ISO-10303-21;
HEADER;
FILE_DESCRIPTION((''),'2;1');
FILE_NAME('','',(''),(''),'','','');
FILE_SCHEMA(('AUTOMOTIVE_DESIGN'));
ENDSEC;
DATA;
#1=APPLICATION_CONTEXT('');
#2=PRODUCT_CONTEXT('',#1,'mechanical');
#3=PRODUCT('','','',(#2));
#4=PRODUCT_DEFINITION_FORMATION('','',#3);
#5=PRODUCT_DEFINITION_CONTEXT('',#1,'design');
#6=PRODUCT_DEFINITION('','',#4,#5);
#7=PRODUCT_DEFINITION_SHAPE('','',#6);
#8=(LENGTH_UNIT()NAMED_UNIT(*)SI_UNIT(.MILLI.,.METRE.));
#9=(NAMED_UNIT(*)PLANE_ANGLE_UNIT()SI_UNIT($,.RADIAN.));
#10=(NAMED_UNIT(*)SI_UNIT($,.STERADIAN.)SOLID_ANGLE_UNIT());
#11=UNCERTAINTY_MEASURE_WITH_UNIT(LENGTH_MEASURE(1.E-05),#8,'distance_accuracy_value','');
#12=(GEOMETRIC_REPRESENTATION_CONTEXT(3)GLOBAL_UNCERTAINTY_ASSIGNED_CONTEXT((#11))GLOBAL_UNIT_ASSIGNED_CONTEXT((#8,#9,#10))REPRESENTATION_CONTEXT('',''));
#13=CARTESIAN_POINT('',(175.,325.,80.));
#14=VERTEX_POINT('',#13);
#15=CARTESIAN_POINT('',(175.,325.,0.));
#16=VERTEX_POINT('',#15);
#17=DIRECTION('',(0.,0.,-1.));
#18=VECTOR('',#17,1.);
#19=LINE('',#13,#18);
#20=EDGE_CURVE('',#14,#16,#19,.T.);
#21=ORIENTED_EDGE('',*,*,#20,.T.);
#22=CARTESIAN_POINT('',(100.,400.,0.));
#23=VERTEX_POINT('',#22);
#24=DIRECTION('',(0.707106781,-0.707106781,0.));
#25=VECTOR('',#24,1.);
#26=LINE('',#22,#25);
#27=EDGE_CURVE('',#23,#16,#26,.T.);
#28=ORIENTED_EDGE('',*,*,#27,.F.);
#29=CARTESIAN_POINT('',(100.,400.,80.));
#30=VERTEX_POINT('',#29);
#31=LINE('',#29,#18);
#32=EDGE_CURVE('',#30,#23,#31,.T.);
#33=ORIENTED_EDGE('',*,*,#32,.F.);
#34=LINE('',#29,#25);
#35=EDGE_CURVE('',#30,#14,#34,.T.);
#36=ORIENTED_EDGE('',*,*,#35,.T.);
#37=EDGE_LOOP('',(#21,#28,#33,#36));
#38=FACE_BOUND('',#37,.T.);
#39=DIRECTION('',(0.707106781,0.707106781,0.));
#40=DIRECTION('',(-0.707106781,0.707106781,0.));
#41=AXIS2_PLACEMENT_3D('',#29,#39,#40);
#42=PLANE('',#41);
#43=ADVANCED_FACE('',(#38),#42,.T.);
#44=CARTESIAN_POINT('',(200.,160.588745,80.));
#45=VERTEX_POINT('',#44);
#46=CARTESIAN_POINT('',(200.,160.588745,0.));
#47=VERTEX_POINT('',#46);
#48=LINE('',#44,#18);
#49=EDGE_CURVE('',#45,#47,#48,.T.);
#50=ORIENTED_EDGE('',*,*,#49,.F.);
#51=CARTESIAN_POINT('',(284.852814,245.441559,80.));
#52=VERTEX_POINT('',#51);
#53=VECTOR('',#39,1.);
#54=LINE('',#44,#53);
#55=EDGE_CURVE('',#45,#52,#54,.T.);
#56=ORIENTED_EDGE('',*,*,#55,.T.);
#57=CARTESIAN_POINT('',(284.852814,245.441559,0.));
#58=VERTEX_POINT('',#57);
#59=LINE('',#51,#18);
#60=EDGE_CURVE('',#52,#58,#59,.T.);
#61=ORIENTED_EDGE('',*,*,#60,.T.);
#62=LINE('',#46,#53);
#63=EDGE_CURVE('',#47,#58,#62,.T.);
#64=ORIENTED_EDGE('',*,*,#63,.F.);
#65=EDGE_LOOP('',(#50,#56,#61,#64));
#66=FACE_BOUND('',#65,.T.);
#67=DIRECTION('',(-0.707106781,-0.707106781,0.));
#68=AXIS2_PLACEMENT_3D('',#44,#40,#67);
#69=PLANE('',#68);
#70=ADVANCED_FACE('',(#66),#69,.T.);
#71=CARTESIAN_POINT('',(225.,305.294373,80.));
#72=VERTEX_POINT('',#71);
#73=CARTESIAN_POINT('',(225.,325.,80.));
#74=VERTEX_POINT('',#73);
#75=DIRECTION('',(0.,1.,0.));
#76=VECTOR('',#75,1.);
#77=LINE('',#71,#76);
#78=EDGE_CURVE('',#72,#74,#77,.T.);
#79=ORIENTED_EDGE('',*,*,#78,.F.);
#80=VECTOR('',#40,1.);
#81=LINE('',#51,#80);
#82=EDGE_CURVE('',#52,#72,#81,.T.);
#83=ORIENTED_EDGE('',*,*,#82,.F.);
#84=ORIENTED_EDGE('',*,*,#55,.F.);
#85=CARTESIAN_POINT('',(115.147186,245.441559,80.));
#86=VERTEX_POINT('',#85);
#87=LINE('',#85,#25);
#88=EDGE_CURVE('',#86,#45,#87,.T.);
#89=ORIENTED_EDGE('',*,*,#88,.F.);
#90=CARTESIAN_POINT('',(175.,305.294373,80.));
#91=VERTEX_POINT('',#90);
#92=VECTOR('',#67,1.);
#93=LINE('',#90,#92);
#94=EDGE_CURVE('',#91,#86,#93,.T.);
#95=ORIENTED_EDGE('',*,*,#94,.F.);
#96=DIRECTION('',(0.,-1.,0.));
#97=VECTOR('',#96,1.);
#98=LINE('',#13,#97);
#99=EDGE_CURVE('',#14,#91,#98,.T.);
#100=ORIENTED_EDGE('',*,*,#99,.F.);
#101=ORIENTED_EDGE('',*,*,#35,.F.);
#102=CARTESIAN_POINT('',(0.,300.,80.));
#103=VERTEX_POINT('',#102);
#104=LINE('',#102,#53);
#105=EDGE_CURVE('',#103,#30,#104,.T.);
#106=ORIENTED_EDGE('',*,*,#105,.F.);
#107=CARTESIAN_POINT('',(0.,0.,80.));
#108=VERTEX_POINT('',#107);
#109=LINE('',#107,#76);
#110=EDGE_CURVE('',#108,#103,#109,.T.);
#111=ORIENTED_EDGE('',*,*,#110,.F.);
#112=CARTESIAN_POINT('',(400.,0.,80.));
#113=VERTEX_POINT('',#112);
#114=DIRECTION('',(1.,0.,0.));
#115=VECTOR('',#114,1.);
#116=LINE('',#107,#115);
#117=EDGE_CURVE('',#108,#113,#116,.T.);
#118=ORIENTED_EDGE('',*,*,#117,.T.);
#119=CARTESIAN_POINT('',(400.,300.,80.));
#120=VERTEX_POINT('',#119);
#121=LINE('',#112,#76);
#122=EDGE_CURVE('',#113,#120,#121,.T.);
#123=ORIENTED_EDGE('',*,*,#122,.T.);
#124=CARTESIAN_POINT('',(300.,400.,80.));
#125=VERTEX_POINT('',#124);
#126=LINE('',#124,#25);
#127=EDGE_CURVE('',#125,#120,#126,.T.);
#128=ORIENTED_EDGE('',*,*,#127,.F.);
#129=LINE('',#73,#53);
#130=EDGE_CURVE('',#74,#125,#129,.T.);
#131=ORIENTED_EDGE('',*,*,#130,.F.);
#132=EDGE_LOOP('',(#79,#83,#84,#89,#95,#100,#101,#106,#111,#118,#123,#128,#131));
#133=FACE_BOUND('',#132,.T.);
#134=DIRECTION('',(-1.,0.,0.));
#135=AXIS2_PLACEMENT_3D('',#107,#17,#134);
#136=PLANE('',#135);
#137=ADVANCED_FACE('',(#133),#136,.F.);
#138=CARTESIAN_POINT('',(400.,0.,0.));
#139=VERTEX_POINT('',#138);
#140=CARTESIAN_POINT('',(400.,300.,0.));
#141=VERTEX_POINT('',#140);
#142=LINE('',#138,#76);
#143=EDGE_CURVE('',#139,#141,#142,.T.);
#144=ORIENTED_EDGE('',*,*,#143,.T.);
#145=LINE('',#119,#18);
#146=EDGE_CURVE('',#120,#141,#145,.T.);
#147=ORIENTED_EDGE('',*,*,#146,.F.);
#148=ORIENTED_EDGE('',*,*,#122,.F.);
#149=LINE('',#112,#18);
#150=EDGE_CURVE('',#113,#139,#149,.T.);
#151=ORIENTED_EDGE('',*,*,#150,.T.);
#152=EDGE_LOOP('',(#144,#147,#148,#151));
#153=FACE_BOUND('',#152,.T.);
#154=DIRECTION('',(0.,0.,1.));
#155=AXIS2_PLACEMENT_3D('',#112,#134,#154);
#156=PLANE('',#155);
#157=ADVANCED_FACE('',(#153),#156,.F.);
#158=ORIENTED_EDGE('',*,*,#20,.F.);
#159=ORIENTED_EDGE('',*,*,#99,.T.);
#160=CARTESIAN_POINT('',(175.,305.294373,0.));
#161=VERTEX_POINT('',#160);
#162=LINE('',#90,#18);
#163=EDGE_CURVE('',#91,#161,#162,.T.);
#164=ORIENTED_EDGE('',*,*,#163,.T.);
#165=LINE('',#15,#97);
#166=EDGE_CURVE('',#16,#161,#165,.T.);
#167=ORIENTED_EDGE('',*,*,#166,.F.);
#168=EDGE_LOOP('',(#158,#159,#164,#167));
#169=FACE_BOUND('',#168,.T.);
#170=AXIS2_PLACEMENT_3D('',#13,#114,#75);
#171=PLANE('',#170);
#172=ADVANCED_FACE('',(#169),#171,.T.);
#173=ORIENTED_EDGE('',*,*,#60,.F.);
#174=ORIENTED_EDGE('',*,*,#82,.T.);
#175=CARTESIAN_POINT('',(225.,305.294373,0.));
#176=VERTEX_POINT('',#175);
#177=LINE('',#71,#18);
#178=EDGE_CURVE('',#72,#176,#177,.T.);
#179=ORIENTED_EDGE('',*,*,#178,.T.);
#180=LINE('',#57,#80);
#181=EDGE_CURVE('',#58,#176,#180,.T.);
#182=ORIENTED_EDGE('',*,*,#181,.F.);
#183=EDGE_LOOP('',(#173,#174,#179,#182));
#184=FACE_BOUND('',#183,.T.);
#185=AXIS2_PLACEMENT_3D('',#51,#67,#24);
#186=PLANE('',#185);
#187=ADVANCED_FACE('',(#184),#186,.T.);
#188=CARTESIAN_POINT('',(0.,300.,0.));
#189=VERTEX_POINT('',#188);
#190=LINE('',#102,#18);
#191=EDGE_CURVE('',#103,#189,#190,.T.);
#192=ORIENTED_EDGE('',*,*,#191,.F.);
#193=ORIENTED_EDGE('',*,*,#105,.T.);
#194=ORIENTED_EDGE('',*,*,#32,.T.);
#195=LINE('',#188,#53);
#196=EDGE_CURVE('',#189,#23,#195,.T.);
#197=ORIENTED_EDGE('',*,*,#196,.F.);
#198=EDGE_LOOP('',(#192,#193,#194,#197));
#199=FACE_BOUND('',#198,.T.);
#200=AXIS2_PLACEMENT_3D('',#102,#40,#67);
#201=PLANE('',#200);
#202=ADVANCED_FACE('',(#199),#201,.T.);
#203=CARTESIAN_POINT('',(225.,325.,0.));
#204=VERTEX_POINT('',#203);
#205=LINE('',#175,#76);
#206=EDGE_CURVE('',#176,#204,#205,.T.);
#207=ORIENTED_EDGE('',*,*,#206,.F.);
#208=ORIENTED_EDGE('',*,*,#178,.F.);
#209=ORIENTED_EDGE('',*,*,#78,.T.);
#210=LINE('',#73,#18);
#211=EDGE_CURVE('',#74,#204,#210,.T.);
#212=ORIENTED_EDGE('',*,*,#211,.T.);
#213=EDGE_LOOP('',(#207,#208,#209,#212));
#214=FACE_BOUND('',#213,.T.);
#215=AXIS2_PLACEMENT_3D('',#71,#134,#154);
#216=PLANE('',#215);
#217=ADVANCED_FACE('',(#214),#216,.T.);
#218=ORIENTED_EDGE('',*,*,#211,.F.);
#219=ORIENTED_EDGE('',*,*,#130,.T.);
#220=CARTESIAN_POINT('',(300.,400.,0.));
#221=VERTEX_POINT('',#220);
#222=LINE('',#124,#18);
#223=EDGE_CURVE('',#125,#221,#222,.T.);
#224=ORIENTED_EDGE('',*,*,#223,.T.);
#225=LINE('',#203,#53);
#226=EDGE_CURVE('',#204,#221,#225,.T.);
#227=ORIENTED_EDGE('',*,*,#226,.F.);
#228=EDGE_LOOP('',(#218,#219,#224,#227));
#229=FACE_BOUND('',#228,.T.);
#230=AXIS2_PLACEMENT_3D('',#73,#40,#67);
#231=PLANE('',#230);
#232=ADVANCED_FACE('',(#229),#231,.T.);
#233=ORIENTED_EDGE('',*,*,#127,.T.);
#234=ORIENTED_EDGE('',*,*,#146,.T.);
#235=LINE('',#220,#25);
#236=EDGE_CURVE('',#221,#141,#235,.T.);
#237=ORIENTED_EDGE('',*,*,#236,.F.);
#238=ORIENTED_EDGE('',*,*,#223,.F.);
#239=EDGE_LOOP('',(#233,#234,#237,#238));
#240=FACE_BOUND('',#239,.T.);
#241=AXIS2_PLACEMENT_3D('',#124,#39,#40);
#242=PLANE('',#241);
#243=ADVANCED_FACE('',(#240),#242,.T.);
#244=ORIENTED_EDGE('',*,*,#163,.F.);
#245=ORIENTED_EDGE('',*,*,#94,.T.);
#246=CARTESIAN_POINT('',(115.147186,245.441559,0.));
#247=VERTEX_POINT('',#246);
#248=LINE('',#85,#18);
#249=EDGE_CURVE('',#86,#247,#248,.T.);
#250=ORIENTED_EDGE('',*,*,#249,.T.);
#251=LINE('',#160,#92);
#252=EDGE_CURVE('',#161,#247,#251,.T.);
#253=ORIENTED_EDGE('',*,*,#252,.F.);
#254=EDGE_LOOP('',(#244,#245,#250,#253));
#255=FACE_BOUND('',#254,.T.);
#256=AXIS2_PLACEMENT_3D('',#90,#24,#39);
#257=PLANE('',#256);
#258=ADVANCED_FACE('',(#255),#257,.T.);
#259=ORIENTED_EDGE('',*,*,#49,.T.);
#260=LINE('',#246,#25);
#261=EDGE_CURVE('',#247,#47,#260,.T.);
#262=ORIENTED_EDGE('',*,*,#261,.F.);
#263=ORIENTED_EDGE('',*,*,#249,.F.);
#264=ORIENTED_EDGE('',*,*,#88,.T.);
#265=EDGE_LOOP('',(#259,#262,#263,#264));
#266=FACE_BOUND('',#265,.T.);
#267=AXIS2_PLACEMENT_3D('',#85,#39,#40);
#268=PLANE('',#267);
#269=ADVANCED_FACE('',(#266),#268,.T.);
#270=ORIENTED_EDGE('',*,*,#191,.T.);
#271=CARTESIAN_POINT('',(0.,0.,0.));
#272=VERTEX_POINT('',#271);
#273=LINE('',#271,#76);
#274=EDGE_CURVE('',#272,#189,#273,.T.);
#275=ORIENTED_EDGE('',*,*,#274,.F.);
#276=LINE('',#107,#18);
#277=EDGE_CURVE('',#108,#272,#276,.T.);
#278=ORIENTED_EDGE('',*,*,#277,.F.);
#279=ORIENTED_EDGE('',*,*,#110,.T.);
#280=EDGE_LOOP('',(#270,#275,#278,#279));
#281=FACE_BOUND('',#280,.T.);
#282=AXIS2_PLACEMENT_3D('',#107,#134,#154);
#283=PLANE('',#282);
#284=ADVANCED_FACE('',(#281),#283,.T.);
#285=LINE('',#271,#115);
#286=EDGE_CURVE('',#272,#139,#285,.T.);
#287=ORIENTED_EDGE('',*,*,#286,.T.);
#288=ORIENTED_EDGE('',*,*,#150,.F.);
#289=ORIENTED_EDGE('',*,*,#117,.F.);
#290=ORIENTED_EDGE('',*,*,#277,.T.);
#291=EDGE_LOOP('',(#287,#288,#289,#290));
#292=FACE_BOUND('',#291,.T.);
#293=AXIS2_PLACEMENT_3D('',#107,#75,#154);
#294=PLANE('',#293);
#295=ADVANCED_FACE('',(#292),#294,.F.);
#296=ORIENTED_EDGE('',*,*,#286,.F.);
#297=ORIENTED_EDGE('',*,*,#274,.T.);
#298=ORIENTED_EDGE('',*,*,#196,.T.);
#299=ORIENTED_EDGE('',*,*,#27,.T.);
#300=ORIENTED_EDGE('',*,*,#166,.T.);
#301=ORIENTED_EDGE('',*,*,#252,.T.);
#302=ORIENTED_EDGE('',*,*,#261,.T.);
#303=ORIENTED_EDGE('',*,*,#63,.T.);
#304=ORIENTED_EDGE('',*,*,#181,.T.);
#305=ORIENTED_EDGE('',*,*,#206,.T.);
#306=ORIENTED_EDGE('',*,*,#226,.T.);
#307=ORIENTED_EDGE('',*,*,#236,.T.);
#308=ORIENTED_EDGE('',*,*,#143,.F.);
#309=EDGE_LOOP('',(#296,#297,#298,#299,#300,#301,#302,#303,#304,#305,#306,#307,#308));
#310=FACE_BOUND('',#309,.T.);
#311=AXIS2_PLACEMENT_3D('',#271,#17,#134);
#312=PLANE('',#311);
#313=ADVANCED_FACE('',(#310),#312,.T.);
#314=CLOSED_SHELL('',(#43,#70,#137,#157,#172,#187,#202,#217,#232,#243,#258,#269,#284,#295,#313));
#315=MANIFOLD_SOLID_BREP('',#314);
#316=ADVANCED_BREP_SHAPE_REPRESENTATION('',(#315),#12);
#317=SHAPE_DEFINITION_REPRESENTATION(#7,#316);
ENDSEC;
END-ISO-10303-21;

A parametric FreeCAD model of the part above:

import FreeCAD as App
import Part
import Sketcher
Q = App.Units.Quantity

doc = App.newDocument("Part")
body = doc.addObject("PartDesign::Body", "Body")

# Sketch on XY plane
sketch1 = body.newObject("Sketcher::SketchObject", "Sketch")
sketch1.AttachmentSupport = (doc.getObject("XY_Plane"), [""])
sketch1.MapMode = "FlatFace"
sketch1.addGeometry([
    Part.LineSegment(App.Vector(100, 400, 0), App.Vector(0, 300, 0)),  # 0
    Part.LineSegment(App.Vector(0, 300, 0), App.Vector(0, 0, 0)),  # 1
    Part.LineSegment(App.Vector(0, 0, 0), App.Vector(400, 0, 0)),  # 2
    Part.LineSegment(App.Vector(400, 0, 0), App.Vector(400, 300, 0)),  # 3
    Part.LineSegment(App.Vector(400, 300, 0), App.Vector(300, 400, 0)),  # 4
    Part.LineSegment(App.Vector(300, 400, 0), App.Vector(225, 325, 0)),  # 5
    Part.LineSegment(App.Vector(225, 325, 0), App.Vector(225, 305, 0)),  # 6
    Part.LineSegment(App.Vector(225, 305, 0), App.Vector(285, 245, 0)),  # 7
    Part.LineSegment(App.Vector(285, 245, 0), App.Vector(200, 161, 0)),  # 8
    Part.LineSegment(App.Vector(200, 161, 0), App.Vector(115, 245, 0)),  # 9
    Part.LineSegment(App.Vector(115, 245, 0), App.Vector(175, 305, 0)),  # 10
    Part.LineSegment(App.Vector(175, 305, 0), App.Vector(175, 325, 0)),  # 11
    Part.LineSegment(App.Vector(175, 325, 0), App.Vector(100, 400, 0)),  # 12
], False)
sketch1.addConstraint([
    Sketcher.Constraint("Coincident", 0, 2, 1, 1),
    Sketcher.Constraint("Coincident", 1, 2, 2, 1),
    Sketcher.Constraint("Coincident", 2, 2, 3, 1),
    Sketcher.Constraint("Coincident", 3, 2, 4, 1),
    Sketcher.Constraint("Coincident", 4, 2, 5, 1),
    Sketcher.Constraint("Coincident", 5, 2, 6, 1),
    Sketcher.Constraint("Coincident", 6, 2, 7, 1),
    Sketcher.Constraint("Coincident", 7, 2, 8, 1),
    Sketcher.Constraint("Coincident", 8, 2, 9, 1),
    Sketcher.Constraint("Coincident", 9, 2, 10, 1),
    Sketcher.Constraint("Coincident", 10, 2, 11, 1),
    Sketcher.Constraint("Coincident", 11, 2, 12, 1),
    Sketcher.Constraint("Coincident", 12, 2, 0, 1),
    Sketcher.Constraint("Vertical", 1),
    Sketcher.Constraint("Horizontal", 2),
    Sketcher.Constraint("Vertical", 3),
    Sketcher.Constraint("Vertical", 6),
    Sketcher.Constraint("Vertical", 11),
    Sketcher.Constraint("Coincident", 1, 2, -1, 1),
    Sketcher.Constraint("Perpendicular", 0, 4),
    Sketcher.Constraint("Perpendicular", 4, 5),
    Sketcher.Constraint("Perpendicular", 5, 7),
    Sketcher.Constraint("Perpendicular", 7, 8),
    Sketcher.Constraint("Perpendicular", 8, 9),
    Sketcher.Constraint("Perpendicular", 9, 10),
    Sketcher.Constraint("Perpendicular", 10, 12),
    Sketcher.Constraint("Horizontal", 0, 2, 3, 2),
    Sketcher.Constraint("Horizontal", 7, 2, 9, 2),
    Sketcher.Constraint("Horizontal", 6, 2, 10, 2),
    Sketcher.Constraint("Horizontal", 5, 2, 11, 2),
    Sketcher.Constraint("Horizontal", 4, 2, 12, 2),
    Sketcher.Constraint("Equal", 0, 4),
    Sketcher.Constraint("DistanceX", 2, 1, 2, 2, Q("400 mm")),
    Sketcher.Constraint("DistanceY", 1, 2, 1, 1, Q("300 mm")),
    Sketcher.Constraint("Distance", 8, Q("120 mm")),
    Sketcher.Constraint("DistanceX", -1, 1, 4, 2, Q("300 mm")),
    Sketcher.Constraint("DistanceX", -1, 1, 5, 2, Q("225 mm")),
    Sketcher.Constraint("DistanceY", 6, 2, 6, 1, Q("19.705627 mm")),
])
pad1 = body.newObject("PartDesign::Pad", "Pad")
pad1.Profile = sketch1
pad1.Length = 80

doc.recompute()
